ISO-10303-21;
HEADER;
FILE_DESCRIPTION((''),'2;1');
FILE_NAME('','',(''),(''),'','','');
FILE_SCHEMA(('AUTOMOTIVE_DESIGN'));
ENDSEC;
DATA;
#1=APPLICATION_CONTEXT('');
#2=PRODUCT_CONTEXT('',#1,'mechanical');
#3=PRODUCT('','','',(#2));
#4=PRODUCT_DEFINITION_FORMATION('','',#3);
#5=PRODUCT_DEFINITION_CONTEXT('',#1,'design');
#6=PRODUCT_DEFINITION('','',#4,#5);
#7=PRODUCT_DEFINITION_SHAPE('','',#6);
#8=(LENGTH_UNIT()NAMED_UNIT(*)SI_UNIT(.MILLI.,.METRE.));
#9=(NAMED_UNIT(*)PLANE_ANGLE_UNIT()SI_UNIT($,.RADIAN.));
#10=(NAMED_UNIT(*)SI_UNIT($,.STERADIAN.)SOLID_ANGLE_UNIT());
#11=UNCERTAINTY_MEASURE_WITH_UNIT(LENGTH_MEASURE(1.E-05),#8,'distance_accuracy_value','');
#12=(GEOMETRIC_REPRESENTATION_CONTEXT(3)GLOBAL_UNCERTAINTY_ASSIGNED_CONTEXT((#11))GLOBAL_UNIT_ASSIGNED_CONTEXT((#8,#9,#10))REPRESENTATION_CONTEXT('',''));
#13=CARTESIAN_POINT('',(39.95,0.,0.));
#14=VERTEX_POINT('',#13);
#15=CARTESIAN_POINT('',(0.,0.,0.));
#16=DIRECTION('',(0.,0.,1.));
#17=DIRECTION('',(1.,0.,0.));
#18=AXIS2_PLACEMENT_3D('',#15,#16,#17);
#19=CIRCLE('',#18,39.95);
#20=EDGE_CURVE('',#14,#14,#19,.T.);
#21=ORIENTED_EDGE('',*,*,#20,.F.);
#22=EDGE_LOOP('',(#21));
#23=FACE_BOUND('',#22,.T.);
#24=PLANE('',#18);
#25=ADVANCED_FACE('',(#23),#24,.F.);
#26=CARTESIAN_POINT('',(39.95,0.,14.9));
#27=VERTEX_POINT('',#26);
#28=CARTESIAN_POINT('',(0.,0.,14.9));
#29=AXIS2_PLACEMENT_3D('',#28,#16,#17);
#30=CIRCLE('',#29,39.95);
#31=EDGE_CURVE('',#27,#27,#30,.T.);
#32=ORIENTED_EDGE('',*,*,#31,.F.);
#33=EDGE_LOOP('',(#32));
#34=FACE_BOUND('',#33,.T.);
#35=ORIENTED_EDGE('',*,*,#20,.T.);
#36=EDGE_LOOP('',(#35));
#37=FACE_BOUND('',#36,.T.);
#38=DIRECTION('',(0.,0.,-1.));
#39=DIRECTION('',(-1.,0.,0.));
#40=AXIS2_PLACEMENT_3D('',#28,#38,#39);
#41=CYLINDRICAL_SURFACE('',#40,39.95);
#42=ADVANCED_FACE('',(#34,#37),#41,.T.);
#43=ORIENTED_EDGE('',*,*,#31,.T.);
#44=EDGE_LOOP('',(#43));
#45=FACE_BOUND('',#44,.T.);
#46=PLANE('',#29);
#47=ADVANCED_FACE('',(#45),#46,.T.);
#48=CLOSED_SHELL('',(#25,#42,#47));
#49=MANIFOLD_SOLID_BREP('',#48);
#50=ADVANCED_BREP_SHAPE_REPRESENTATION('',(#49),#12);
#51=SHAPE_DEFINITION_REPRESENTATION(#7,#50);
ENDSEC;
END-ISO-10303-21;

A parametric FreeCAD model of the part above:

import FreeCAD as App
import Part
import Sketcher

V = App.Vector

doc = App.newDocument("Part")
body = doc.addObject("PartDesign::Body", "Body")

# Sketch on XY plane
sketch1 = body.newObject("Sketcher::SketchObject", "Sketch")
sketch1.AttachmentSupport = (doc.getObject("XY_Plane"), [""])
sketch1.MapMode = "FlatFace"
sketch1.addGeometry(Part.Circle(V(0, 0, 0), V(0, 0, 1), 40), False)
sketch1.addConstraint([
    Sketcher.Constraint("Coincident", 0, 3, -1, 1),
    Sketcher.Constraint("Diameter", 0, 79.9),
])
pad1 = body.newObject("PartDesign::Pad", "Pad")
pad1.Profile = sketch1
pad1.Length = 14.9

doc.recompute()
